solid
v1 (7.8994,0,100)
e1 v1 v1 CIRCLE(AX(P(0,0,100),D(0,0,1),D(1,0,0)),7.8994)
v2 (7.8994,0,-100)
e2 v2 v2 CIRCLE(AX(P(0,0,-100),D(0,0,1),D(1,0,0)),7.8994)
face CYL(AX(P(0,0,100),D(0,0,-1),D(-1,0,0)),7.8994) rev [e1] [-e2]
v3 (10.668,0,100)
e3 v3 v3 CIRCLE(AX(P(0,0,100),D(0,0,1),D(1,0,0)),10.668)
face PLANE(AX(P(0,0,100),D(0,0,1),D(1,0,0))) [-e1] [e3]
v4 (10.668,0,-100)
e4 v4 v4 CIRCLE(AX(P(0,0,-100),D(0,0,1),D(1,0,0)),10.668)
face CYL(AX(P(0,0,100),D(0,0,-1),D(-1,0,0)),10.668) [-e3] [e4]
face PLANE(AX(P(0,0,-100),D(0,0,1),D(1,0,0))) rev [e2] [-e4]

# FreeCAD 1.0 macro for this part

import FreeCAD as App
import Part
import Sketcher
Q = App.Units.Quantity

doc = App.newDocument("Part")
body = doc.addObject("PartDesign::Body", "Body")

sketch1 = body.newObject("Sketcher::SketchObject", "Sketch")
sketch1.AttachmentSupport = (doc.getObject("XY_Plane"), [""])
sketch1.MapMode = "FlatFace"
sketch1.addGeometry(Part.Circle(App.Vector(0, 0, 0), App.Vector(0, 0, 1), 11), False)
sketch1.addGeometry(Part.Circle(App.Vector(0, 0, 0), App.Vector(0, 0, 1), 8), False)
sketch1.addConstraint(Sketcher.Constraint("Coincident", 0, 3, -1, 1))
sketch1.addConstraint(Sketcher.Constraint("Coincident", 1, 3, -1, 1))
sketch1.addConstraint(Sketcher.Constraint("Diameter", 0, Q("0.84 in")))
sketch1.addConstraint(Sketcher.Constraint("Diameter", 1, Q("0.622 in")))
pad1 = body.newObject("PartDesign::Pad", "Pad")
pad1.Profile = sketch1
pad1.Length = 200
pad1.Midplane = True

doc.recompute()
